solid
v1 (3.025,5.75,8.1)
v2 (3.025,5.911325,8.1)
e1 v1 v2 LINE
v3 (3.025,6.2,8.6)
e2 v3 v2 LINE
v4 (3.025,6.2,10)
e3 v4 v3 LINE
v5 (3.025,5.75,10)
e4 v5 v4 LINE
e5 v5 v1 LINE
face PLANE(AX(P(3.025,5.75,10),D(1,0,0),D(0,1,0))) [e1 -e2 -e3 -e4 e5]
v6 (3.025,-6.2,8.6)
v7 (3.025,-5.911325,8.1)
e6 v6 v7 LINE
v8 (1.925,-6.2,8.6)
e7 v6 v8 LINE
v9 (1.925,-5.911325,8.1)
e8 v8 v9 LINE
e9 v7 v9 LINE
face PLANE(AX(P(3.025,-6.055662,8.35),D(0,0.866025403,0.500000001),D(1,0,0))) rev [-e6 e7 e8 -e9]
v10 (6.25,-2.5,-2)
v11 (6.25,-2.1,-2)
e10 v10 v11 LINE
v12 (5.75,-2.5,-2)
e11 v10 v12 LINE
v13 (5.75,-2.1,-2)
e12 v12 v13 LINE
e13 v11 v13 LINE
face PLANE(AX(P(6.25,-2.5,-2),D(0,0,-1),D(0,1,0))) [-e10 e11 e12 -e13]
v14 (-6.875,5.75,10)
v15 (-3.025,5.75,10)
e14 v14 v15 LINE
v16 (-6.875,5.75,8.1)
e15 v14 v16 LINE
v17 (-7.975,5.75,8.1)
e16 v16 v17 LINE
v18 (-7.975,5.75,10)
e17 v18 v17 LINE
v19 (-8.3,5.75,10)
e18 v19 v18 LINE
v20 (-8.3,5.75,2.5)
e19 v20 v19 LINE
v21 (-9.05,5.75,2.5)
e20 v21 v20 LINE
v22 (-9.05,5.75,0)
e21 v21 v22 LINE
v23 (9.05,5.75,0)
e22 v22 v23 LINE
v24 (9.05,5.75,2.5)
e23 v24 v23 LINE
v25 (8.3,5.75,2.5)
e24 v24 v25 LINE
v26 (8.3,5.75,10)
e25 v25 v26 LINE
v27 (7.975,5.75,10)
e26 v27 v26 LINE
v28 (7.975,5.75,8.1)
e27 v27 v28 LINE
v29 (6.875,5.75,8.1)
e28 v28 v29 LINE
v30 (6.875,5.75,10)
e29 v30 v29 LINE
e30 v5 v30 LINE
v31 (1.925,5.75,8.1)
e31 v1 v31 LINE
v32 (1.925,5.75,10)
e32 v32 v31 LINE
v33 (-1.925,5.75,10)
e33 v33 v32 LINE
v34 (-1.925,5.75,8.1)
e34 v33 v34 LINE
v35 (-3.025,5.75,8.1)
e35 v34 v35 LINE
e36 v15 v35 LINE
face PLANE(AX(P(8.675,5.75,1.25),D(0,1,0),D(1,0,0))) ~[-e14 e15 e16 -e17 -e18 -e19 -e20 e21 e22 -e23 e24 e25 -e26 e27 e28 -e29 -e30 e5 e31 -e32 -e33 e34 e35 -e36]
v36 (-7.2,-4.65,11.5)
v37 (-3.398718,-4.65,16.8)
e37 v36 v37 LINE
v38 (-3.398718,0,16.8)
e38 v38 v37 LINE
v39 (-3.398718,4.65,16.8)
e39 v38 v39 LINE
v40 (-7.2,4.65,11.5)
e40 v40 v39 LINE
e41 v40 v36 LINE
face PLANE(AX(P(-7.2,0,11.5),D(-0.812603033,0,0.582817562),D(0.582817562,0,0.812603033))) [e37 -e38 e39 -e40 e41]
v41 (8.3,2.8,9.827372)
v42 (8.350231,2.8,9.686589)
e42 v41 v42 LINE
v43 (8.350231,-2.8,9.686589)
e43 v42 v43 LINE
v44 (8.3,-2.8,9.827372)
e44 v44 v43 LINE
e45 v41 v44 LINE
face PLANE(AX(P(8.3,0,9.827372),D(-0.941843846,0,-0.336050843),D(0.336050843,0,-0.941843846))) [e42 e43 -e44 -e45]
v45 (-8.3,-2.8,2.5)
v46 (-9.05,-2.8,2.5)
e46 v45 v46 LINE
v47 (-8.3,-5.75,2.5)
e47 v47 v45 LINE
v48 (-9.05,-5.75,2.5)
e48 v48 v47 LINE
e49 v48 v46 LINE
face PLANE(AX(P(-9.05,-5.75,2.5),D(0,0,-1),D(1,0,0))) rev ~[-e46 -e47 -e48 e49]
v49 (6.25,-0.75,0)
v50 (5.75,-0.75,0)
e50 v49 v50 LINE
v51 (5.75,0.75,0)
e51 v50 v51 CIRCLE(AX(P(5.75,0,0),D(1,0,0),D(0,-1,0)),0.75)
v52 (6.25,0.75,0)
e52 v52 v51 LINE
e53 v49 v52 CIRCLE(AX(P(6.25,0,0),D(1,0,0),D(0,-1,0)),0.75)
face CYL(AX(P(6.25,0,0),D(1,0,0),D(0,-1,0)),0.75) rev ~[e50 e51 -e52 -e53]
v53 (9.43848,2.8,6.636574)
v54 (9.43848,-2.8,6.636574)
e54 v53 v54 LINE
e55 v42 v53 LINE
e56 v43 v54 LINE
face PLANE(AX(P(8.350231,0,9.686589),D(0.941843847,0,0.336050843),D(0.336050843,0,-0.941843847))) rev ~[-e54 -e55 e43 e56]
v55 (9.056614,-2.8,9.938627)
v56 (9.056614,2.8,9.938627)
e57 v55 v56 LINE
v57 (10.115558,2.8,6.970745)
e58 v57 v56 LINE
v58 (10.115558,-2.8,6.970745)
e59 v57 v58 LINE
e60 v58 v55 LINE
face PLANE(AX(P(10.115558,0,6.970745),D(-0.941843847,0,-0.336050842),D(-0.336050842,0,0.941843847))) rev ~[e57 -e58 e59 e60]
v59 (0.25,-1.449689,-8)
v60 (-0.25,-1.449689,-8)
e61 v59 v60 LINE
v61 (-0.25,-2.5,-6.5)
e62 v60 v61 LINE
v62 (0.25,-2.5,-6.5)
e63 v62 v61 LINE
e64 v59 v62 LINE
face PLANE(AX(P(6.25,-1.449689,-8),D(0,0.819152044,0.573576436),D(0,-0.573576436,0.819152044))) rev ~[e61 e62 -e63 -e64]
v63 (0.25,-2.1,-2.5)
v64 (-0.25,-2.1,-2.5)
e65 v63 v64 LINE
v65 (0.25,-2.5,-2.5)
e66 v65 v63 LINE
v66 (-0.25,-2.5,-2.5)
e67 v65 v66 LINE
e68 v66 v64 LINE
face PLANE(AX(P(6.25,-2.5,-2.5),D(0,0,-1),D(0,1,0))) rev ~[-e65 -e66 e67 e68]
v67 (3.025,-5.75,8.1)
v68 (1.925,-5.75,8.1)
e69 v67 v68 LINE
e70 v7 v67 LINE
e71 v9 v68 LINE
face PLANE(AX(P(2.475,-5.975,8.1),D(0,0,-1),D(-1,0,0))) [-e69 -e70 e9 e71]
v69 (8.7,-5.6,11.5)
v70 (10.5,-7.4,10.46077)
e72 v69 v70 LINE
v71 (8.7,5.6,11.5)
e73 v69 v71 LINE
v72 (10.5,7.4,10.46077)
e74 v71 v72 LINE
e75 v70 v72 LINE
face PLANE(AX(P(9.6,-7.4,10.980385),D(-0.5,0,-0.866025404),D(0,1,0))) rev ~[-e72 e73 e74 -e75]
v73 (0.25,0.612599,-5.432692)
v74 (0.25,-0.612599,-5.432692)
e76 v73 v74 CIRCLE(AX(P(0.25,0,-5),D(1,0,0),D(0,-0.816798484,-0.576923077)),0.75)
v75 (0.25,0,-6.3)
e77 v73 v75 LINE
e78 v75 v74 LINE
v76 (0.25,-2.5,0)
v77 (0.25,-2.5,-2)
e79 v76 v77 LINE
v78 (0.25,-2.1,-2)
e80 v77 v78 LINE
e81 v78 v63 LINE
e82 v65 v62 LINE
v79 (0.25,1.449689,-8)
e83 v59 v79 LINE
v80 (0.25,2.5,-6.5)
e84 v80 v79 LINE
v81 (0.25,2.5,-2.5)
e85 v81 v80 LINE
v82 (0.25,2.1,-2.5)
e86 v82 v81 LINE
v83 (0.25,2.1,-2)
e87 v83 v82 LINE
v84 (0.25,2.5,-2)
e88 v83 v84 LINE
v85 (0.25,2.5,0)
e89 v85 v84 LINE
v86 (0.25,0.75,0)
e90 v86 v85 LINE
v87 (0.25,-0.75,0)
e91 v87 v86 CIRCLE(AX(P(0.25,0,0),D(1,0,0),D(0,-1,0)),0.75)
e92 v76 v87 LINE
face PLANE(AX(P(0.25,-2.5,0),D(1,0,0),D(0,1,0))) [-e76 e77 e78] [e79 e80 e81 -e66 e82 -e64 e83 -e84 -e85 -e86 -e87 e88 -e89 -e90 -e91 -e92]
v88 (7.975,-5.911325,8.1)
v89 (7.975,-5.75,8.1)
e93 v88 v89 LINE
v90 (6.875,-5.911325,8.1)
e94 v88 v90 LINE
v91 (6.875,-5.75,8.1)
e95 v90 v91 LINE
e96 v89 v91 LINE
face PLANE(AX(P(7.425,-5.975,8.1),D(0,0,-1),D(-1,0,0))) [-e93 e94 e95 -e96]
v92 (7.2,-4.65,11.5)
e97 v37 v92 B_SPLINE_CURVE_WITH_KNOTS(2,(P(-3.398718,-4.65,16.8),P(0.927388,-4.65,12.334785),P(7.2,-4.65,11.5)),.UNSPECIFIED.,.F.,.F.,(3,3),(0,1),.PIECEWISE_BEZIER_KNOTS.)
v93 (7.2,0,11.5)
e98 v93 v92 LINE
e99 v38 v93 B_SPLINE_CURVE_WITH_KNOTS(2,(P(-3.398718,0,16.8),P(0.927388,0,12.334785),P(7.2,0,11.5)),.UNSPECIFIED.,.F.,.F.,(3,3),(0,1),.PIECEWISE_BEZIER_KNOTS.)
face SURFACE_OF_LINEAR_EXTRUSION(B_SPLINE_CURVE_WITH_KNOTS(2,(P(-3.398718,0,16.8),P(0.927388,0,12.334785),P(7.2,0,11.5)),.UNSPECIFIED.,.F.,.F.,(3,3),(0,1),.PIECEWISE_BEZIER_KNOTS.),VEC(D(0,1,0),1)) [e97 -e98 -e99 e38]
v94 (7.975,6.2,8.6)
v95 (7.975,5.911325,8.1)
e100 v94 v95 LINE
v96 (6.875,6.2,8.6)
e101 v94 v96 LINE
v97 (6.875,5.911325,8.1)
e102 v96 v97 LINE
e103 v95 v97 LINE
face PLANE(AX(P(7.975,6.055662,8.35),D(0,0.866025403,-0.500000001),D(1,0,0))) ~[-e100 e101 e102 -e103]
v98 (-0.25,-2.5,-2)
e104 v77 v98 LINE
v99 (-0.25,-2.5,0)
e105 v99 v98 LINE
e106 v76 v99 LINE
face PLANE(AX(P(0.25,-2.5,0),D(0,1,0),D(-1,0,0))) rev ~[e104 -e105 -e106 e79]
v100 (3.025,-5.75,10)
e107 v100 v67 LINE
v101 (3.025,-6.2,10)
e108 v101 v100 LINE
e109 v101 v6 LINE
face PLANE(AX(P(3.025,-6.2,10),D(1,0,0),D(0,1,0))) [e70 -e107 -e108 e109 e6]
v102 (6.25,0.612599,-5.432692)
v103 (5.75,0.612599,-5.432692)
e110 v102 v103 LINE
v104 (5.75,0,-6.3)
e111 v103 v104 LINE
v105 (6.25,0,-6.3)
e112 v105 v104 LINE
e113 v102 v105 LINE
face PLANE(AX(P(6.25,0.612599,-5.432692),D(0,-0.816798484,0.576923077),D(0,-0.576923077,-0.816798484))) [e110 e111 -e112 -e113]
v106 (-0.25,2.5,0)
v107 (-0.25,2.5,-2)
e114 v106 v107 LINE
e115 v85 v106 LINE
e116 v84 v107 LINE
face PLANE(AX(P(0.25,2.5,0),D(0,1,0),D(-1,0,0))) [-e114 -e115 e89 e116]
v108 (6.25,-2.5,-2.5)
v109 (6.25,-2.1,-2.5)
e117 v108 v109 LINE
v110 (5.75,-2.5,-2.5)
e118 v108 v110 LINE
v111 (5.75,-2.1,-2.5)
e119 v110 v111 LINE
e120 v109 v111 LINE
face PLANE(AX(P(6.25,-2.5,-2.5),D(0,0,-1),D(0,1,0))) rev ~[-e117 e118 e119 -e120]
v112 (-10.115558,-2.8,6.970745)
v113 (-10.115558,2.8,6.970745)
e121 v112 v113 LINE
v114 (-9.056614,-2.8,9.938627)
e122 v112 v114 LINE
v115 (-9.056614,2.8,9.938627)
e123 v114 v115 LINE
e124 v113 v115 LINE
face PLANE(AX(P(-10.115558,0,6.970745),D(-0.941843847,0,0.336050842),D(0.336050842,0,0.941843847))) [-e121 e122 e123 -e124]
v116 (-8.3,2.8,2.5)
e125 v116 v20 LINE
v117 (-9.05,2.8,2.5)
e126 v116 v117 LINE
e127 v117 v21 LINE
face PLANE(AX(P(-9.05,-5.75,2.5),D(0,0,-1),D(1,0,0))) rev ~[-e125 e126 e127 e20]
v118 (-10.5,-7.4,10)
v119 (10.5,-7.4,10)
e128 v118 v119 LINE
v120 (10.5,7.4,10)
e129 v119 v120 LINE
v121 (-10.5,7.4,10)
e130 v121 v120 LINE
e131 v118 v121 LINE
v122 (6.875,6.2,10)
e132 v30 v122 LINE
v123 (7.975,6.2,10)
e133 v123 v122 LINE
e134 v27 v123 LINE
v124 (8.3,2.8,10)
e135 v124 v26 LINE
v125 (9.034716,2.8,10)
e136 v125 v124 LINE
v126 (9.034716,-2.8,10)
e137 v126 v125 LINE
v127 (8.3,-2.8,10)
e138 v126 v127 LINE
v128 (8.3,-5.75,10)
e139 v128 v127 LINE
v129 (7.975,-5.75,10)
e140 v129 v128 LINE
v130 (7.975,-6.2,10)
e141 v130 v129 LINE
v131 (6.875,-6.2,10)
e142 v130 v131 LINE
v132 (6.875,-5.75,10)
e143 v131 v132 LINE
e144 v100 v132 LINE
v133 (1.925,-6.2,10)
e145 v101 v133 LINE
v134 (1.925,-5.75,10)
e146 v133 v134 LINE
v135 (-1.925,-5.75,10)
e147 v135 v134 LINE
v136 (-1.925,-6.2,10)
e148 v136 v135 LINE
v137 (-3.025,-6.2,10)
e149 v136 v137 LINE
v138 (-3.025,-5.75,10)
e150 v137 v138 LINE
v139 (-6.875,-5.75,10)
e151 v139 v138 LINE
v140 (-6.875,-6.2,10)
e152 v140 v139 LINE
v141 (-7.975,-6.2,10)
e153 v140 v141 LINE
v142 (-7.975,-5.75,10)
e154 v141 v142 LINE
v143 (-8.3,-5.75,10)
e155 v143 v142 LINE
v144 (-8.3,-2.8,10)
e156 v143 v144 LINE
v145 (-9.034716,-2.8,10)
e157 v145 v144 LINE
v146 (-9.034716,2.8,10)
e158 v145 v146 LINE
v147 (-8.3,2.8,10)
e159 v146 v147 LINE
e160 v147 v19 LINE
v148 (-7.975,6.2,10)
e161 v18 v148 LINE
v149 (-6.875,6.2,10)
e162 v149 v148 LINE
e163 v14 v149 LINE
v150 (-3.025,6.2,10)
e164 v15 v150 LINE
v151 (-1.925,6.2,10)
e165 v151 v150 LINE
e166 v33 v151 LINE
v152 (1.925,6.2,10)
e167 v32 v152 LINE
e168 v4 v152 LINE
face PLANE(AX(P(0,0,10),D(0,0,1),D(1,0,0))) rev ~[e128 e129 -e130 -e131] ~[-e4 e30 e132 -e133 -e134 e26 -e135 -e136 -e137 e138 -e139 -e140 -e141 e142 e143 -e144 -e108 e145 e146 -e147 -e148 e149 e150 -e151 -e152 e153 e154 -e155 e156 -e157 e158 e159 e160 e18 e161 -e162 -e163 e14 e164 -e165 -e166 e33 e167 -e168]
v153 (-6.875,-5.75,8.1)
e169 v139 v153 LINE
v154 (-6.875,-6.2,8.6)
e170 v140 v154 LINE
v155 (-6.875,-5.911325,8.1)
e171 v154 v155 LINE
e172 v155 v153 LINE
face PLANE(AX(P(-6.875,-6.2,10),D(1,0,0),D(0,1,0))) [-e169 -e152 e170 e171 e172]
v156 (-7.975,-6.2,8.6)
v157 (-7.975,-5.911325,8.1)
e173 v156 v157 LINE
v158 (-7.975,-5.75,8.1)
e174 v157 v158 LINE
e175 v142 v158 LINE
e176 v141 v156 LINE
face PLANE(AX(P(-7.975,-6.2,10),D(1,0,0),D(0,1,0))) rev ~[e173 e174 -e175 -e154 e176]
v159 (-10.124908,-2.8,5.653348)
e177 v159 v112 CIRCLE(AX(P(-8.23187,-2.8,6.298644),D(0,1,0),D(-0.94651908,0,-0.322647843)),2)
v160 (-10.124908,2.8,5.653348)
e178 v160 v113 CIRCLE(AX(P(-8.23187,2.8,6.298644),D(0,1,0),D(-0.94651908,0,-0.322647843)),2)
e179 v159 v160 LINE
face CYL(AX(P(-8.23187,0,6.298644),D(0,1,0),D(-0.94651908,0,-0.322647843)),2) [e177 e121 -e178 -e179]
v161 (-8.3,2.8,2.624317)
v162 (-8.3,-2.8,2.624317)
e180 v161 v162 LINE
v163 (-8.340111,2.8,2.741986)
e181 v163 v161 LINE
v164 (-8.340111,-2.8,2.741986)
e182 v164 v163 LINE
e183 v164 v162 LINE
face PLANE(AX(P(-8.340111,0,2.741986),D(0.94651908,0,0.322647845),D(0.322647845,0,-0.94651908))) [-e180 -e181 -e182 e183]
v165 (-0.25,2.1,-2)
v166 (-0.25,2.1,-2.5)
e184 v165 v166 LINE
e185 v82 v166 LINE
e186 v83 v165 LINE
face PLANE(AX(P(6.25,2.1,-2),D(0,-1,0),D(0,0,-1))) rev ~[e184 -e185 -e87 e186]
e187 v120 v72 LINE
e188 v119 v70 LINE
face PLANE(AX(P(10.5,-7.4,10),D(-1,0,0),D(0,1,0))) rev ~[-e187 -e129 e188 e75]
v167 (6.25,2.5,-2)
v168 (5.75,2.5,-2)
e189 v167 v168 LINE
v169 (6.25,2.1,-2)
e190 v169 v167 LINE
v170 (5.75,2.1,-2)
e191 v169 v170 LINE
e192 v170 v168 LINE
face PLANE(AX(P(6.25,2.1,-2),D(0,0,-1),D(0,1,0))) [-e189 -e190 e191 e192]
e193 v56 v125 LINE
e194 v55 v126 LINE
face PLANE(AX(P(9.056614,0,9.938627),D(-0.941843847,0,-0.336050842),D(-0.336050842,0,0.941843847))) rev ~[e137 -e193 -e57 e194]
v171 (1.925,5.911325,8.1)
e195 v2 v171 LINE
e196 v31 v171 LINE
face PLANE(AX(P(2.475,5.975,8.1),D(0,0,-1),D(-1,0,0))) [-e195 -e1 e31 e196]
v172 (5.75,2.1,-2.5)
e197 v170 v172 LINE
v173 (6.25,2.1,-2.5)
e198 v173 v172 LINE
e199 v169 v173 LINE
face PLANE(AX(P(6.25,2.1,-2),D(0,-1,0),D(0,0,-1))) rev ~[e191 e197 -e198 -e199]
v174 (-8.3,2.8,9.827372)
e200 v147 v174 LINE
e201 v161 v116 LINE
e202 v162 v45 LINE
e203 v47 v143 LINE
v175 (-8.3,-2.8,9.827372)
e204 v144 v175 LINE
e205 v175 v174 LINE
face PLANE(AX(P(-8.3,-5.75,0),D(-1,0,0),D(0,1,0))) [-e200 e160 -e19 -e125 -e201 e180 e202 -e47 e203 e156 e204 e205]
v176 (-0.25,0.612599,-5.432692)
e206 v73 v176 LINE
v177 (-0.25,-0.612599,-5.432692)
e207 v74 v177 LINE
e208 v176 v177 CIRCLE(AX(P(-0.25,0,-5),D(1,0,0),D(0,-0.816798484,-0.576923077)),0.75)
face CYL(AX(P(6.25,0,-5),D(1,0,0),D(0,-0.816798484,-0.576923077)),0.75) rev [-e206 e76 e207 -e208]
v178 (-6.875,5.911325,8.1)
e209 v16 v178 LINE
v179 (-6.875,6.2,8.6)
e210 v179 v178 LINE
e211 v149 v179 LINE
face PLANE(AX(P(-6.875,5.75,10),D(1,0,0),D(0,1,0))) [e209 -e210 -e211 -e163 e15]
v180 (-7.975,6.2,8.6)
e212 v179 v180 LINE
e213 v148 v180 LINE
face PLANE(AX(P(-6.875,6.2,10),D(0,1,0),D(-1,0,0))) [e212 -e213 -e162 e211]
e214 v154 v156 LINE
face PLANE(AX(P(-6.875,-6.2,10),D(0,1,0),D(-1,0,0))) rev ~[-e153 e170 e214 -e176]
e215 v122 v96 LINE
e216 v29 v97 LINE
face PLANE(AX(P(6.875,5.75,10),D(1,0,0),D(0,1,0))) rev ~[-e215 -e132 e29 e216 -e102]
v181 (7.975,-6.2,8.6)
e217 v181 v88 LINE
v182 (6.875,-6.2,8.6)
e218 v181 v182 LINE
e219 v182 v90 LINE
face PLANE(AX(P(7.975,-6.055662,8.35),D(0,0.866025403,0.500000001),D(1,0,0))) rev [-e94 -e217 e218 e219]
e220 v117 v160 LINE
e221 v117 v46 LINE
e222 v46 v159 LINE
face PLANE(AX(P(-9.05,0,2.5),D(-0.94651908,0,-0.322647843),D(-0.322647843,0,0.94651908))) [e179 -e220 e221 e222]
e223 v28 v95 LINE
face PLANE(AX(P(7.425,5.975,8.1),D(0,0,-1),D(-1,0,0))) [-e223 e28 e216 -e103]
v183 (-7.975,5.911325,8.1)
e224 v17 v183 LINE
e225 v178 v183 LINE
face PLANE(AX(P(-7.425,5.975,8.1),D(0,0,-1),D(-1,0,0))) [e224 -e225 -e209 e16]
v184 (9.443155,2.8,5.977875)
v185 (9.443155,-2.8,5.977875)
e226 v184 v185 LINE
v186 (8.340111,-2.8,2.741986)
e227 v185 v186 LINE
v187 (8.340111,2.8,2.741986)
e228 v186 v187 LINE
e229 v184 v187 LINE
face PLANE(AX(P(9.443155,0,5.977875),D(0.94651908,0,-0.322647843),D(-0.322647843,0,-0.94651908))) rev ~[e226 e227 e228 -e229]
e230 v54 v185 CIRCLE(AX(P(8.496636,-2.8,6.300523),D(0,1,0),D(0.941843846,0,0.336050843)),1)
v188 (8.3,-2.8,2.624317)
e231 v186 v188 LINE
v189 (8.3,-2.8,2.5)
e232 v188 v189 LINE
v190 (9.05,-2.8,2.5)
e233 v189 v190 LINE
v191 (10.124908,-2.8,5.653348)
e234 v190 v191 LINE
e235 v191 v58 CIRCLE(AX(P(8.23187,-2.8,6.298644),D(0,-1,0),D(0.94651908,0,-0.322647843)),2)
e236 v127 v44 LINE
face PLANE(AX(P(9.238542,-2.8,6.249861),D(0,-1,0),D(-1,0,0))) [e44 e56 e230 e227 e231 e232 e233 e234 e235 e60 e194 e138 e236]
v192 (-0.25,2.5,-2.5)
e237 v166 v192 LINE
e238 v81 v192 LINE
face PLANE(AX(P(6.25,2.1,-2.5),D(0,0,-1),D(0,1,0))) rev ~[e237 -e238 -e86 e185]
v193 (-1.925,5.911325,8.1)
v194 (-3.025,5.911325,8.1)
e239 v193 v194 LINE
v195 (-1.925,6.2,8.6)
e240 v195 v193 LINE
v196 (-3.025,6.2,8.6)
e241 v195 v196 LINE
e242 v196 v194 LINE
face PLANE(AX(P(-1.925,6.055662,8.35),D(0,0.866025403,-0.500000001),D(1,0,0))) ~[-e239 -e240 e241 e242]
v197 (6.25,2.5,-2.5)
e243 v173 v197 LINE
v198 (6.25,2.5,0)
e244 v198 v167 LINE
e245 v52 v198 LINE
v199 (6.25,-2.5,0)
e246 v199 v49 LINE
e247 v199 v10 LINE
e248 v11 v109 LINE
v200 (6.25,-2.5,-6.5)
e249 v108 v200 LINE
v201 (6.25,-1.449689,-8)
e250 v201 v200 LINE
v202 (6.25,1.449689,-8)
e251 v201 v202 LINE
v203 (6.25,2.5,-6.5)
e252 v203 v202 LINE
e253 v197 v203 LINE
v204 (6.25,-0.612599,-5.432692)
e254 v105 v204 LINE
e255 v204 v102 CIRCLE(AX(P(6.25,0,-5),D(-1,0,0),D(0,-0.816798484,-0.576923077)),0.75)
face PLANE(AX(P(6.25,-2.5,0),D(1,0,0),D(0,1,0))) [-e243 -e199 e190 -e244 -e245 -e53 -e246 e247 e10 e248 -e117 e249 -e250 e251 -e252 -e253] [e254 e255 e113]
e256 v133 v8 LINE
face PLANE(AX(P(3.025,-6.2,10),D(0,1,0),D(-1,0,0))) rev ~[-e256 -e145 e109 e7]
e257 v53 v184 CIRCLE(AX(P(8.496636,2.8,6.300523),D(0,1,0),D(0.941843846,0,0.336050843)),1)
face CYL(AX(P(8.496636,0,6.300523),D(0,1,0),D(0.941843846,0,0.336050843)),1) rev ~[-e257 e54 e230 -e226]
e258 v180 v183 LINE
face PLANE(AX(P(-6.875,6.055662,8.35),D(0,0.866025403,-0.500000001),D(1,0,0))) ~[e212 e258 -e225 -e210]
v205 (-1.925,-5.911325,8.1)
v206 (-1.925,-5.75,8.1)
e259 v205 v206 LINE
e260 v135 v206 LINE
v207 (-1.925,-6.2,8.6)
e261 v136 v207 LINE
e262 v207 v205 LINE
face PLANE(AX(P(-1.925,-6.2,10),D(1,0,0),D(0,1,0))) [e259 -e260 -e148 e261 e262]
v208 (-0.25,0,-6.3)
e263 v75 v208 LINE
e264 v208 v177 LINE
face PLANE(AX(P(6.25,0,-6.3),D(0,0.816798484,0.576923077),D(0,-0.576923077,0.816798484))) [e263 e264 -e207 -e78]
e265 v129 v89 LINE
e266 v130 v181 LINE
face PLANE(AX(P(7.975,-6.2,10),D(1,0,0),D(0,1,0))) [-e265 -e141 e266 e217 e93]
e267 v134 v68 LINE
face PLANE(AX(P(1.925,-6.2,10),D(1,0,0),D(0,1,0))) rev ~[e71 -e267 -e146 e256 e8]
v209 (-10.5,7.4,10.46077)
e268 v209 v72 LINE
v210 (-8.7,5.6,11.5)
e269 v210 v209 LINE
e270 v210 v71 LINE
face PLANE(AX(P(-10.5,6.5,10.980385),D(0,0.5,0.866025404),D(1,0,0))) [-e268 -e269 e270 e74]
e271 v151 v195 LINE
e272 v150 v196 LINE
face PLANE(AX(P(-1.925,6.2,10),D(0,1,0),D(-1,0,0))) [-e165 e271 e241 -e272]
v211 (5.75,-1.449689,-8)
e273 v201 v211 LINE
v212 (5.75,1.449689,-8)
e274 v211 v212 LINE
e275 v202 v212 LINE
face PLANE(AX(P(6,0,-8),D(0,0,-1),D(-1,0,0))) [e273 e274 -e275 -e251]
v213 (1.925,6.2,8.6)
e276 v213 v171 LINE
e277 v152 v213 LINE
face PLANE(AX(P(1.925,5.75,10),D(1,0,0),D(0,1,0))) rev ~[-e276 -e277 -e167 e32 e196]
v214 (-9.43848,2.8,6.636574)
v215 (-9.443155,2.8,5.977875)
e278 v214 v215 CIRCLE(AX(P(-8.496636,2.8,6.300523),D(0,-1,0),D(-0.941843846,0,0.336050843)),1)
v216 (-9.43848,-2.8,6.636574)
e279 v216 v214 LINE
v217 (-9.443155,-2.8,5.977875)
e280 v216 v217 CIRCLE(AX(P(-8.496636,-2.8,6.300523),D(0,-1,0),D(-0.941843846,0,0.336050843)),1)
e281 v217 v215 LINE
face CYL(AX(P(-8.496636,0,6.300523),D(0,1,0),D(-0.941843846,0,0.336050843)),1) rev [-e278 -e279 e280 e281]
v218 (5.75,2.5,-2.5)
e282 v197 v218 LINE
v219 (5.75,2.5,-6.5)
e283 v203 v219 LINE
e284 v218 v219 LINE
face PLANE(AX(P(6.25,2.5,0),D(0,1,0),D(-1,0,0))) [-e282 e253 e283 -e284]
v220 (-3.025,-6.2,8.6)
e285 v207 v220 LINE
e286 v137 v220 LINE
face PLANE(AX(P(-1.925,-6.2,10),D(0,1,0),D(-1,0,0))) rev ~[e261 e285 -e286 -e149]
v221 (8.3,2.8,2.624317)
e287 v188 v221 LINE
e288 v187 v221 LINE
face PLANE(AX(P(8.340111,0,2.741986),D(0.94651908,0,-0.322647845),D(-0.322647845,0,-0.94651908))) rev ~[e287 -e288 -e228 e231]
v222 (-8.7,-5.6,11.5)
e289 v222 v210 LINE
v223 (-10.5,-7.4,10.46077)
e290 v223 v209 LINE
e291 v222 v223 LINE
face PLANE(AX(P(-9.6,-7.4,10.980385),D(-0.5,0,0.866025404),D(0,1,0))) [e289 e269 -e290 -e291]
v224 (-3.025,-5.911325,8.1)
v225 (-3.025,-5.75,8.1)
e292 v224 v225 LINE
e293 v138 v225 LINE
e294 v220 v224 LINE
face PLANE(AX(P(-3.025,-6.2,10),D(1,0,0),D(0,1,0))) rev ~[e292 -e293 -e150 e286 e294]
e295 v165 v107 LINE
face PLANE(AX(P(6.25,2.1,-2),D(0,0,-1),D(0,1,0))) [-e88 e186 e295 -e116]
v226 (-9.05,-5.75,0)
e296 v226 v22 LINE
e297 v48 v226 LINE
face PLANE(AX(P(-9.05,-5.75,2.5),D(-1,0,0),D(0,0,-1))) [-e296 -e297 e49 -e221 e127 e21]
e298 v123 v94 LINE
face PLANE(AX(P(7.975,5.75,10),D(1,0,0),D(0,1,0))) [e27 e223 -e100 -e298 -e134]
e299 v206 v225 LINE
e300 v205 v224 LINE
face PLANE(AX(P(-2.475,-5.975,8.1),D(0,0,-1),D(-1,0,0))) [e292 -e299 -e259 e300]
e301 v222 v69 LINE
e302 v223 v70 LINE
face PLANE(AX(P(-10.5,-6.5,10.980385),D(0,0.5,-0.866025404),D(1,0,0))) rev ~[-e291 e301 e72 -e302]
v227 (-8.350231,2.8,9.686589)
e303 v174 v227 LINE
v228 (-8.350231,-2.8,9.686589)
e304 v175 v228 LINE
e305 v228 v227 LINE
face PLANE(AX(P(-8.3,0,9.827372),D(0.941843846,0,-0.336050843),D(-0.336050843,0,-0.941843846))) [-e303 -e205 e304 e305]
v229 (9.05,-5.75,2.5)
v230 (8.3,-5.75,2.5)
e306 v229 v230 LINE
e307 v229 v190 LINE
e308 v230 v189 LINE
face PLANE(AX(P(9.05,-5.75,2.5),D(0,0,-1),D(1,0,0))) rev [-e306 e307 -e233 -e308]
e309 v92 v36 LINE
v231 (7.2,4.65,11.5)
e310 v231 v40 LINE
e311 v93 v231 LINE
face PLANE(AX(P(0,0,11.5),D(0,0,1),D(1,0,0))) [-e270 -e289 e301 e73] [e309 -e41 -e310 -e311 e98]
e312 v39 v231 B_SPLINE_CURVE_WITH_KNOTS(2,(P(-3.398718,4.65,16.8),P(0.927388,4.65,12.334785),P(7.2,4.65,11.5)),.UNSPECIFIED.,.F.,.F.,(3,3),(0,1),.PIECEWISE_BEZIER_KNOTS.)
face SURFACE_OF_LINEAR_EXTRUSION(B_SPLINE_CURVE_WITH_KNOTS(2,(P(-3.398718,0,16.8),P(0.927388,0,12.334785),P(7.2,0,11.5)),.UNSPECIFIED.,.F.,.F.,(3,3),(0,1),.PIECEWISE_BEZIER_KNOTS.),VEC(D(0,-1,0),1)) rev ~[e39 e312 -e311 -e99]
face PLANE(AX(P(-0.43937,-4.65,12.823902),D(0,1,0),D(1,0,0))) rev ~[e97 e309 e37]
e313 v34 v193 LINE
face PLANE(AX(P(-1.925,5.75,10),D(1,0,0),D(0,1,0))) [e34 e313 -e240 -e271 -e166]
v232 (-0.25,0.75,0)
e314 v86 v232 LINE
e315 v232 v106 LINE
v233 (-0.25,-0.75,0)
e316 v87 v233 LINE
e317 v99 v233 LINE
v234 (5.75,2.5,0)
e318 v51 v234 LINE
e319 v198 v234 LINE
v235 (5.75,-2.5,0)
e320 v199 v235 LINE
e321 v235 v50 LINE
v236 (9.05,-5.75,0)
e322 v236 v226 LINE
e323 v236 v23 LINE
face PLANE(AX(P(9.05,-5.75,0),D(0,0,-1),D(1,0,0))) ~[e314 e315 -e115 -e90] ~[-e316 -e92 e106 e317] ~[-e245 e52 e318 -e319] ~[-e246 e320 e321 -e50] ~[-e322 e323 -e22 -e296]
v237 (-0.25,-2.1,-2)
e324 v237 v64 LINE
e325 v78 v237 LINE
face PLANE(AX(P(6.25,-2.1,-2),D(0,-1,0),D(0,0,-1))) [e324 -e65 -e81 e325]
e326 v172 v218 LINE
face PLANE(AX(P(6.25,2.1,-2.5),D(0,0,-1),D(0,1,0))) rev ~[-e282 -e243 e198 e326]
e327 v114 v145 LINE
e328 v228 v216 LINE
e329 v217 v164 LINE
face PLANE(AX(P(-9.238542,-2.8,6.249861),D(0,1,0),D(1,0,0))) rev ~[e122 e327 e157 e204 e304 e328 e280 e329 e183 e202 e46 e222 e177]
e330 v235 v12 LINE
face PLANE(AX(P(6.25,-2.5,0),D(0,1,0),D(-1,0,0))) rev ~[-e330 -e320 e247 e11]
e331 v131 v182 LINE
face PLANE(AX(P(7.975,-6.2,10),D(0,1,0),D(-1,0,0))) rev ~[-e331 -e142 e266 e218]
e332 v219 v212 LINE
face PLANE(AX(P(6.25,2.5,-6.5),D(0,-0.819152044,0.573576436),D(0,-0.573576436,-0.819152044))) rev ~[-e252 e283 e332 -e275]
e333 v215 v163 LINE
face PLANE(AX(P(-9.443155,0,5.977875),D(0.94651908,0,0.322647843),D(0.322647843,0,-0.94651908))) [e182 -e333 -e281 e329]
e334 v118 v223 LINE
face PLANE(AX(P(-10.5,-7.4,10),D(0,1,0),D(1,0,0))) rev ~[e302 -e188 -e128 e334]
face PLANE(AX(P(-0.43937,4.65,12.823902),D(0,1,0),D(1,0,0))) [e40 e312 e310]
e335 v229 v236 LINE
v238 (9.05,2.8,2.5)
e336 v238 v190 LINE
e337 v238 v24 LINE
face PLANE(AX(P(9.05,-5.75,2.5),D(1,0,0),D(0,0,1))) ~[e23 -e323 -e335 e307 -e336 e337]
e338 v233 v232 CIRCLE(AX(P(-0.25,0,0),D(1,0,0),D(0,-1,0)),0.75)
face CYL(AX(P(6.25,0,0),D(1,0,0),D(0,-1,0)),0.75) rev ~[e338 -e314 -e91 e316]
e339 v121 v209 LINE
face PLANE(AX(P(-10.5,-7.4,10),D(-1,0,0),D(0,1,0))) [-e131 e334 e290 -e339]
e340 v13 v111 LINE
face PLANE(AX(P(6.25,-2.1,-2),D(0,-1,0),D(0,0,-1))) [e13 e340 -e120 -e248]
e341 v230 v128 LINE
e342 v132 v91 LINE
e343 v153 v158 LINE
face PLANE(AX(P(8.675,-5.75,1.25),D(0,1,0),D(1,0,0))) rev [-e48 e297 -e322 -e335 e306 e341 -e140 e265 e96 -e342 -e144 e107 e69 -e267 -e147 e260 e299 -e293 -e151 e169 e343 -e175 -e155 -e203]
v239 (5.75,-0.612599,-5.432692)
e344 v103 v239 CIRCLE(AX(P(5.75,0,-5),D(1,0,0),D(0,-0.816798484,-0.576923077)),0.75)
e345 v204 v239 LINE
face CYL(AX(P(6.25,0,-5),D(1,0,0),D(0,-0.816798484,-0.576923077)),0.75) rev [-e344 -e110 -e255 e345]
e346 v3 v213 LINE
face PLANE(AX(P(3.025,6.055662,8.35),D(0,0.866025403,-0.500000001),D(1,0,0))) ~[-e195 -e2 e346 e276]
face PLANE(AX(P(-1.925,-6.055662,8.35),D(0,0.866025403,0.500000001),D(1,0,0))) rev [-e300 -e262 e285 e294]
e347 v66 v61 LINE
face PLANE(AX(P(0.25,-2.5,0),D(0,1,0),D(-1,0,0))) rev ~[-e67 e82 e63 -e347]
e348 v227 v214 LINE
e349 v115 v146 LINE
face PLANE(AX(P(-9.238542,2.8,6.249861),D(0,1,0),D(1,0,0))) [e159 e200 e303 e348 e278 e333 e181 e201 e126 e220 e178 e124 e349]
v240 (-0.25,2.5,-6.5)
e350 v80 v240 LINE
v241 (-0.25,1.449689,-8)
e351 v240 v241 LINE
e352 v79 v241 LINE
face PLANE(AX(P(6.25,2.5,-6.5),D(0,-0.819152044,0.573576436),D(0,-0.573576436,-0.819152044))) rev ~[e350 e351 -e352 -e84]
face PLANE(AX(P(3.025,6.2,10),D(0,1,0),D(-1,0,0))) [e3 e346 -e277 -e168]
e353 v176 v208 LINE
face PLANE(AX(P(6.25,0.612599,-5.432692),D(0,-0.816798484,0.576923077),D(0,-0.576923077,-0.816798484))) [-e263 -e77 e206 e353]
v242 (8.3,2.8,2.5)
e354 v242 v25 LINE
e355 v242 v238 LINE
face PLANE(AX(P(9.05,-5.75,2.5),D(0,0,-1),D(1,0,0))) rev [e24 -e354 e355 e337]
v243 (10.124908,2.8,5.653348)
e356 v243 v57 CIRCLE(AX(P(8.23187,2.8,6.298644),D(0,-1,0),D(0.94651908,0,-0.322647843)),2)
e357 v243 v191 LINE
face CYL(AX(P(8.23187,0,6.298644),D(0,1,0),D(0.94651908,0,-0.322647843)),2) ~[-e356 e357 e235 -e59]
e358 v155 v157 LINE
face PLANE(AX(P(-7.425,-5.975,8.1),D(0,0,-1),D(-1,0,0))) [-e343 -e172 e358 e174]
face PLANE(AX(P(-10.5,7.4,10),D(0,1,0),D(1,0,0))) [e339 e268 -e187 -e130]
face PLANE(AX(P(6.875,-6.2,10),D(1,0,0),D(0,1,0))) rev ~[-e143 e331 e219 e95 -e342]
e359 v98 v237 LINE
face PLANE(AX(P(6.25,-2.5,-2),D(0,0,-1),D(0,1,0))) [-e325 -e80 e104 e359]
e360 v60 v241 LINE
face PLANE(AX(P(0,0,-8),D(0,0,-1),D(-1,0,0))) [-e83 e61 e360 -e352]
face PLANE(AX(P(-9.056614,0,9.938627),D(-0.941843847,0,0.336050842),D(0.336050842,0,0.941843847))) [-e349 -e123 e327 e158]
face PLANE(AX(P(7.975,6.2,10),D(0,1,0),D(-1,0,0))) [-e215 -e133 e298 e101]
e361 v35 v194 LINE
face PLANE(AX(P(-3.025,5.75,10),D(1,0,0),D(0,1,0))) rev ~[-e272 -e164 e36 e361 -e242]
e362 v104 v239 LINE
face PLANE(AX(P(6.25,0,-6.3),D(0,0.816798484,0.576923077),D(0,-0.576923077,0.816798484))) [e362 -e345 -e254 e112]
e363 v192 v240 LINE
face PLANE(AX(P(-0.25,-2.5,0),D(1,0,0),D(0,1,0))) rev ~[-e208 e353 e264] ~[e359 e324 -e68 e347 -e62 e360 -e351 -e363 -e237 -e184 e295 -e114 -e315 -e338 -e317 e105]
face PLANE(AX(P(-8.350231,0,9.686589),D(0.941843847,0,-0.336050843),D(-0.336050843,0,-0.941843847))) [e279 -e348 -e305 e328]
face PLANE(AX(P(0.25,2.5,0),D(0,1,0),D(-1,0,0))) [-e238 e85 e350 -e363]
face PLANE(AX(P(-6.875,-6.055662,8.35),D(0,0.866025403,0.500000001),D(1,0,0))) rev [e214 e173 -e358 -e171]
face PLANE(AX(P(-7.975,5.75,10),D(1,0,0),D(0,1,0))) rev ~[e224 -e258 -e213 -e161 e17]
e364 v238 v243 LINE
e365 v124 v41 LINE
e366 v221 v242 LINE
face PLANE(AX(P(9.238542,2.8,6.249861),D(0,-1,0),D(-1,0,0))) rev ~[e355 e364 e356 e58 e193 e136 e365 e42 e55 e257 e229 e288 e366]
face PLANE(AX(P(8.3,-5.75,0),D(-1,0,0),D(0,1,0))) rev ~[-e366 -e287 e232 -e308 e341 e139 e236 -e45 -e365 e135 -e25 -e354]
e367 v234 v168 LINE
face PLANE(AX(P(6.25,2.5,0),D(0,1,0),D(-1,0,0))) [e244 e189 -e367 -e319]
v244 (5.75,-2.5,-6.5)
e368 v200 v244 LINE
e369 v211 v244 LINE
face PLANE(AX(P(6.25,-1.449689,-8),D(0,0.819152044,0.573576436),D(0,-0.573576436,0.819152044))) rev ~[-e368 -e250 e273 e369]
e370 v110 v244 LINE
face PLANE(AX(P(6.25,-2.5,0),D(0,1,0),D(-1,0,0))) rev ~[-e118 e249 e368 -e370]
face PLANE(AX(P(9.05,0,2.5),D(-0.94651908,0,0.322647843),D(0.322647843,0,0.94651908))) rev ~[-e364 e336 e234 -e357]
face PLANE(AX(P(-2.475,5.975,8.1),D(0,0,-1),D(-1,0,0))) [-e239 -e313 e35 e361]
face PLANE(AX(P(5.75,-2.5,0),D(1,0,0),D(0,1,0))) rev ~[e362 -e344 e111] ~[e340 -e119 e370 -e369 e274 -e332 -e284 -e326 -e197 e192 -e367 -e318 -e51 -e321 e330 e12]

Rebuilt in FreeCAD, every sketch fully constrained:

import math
import FreeCAD as App
import Part
import Sketcher
Q = App.Units.Quantity


def edges_at(feature, points):
    """Names of the edges that pass closest to the given points."""
    edges = feature.Shape.Edges
    near = lambda p: min(range(len(edges)), key=lambda i: edges[i].distToShape(Part.Vertex(*p))[0])
    return sorted({f"Edge{near(p) + 1}" for p in points})


def add_polygon(sketch, points):
    """Adds a closed chain of lines whose ends are joined by coincident constraints."""
    first, n = sketch.GeometryCount, len(points)
    for a, b in zip(points, points[1:] + points[:1]):
        sketch.addGeometry(Part.LineSegment(App.Vector(*a, 0), App.Vector(*b, 0)), False)
    for i in range(n):
        sketch.addConstraint(Sketcher.Constraint("Coincident", first + i, 2, first + (i + 1) % n, 1))

doc = App.newDocument("Part")
body = doc.addObject("PartDesign::Body", "Body")

# Sketch on XY plane
sketch1 = body.newObject("Sketcher::SketchObject", "Sketch")
sketch1.AttachmentSupport = (doc.getObject("XY_Plane"), [""])
sketch1.MapMode = "FlatFace"
add_polygon(sketch1, [(-8, 6), (-8, -6), (8, -6), (8, 6)])  # lines 0-3
sketch1.addConstraint([
    Sketcher.Constraint("Vertical", 0),
    Sketcher.Constraint("Horizontal", 1),
    Sketcher.Constraint("Vertical", 2),
    Sketcher.Constraint("Horizontal", 3),
    Sketcher.Constraint("Symmetric", 0, 2, 2, 2, -1, 1),
    Sketcher.Constraint("DistanceX", 1, 1, 1, 2, Q("16.6 mm")),
    Sketcher.Constraint("DistanceY", 0, 2, 0, 1, Q("11.5 mm")),
])
pad1 = body.newObject("PartDesign::Pad", "Pad")
pad1.Profile = sketch1
pad1.Length = 10

# Sketch on XY plane
sketch2 = body.newObject("Sketcher::SketchObject", "Sketch001")
sketch2.AttachmentSupport = (doc.getObject("XY_Plane"), [""])
sketch2.MapMode = "FlatFace"
sketch2.AttachmentOffset = App.Placement(App.Vector(0, 0, 10), App.Rotation())
add_polygon(sketch2, [(-10, 7), (-10, -7), (10, -7), (10, 7)])  # lines 0-3
sketch2.addConstraint([
    Sketcher.Constraint("Vertical", 0),
    Sketcher.Constraint("Horizontal", 1),
    Sketcher.Constraint("Vertical", 2),
    Sketcher.Constraint("Horizontal", 3),
    Sketcher.Constraint("Symmetric", 0, 2, 2, 2, -1, 1),
    Sketcher.Constraint("DistanceX", 1, 1, 1, 2, Q("21 mm")),
    Sketcher.Constraint("DistanceY", 0, 2, 0, 1, Q("14.8 mm")),
])
pad2 = body.newObject("PartDesign::Pad", "Pad001")
pad2.Profile = sketch2
pad2.Length = 1.5

# Sketch on XY plane
sketch3 = body.newObject("Sketcher::SketchObject", "Sketch002")
sketch3.AttachmentSupport = (doc.getObject("XY_Plane"), [""])
sketch3.MapMode = "FlatFace"
add_polygon(sketch3, [(6.2, 2.5), (6.2, -2.5), (5.8, -2.5), (5.8, 2.5)])  # lines 0-3
add_polygon(sketch3, [(0.2, 2.5), (0.2, -2.5), (-0.2, -2.5), (-0.2, 2.5)])  # lines 4-7
sketch3.addConstraint([
    Sketcher.Constraint("Vertical", 0),
    Sketcher.Constraint("Horizontal", 1),
    Sketcher.Constraint("Vertical", 2),
    Sketcher.Constraint("Horizontal", 3),
    Sketcher.Constraint("Vertical", 4),
    Sketcher.Constraint("Horizontal", 5),
    Sketcher.Constraint("Vertical", 6),
    Sketcher.Constraint("Horizontal", 7),
    Sketcher.Constraint("Symmetric", 4, 2, 6, 2, -1, 1),
    Sketcher.Constraint("Horizontal", 1, 2, 4, 2),
    Sketcher.Constraint("Horizontal", 3, 2, 6, 2),
    Sketcher.Constraint("Equal", 3, 5),
    Sketcher.Constraint("DistanceY", 0, 2, 0, 1, Q("5 mm")),
    Sketcher.Constraint("DistanceX", 1, 2, 1, 1, Q("0.5 mm")),
    Sketcher.Constraint("DistanceX", 4, 2, 0, 2, Q("6 mm")),
])
pad3 = body.newObject("PartDesign::Pad", "Pad002")
pad3.Profile = sketch3
pad3.Length = 8
pad3.Reversed = True

# Sketch on YZ plane
sketch4 = body.newObject("Sketcher::SketchObject", "Sketch003")
sketch4.AttachmentSupport = (doc.getObject("YZ_Plane"), [""])
sketch4.MapMode = "FlatFace"
sketch4.AttachmentOffset = App.Placement(App.Vector(0, 0, 6.25), App.Rotation())
add_polygon(sketch4, [(2.5, -2), (2.1, -2), (2.1, -2.5), (2.5, -2.5)])  # lines 0-3
sketch4.addGeometry(Part.LineSegment(App.Vector(0.75, 0, 0), App.Vector(-0.75, 0, 0)), False)  # 4
sketch4.addGeometry(Part.ArcOfCircle(Part.Circle(App.Vector(0, 0, 0), App.Vector(0, 0, 1), 0.75), math.radians(180), math.radians(360)), False)  # 5
add_polygon(sketch4, [(2.5, -6.5), (1.45, -8), (2.5, -8)])  # lines 6-8
sketch4.addGeometry(Part.LineSegment(App.Vector(0, -6.3, 0), App.Vector(0.61, -5.43, 0)), False)  # 9
sketch4.addGeometry(Part.ArcOfCircle(Part.Circle(App.Vector(0, -5, 0), App.Vector(0, 0, 1), 0.75), math.radians(-35), math.radians(215)), False)  # 10
sketch4.addGeometry(Part.LineSegment(App.Vector(-0.61, -5.43, 0), App.Vector(0, -6.3, 0)), False)  # 11
add_polygon(sketch4, [(-2.5, -8), (-1.45, -8), (-2.5, -6.5)])  # lines 12-14
add_polygon(sketch4, [(-2.1, -2), (-2.5, -2), (-2.5, -2.5), (-2.1, -2.5)])  # lines 15-18
sketch4.addConstraint([
    Sketcher.Constraint("Coincident", 4, 1, 5, 2),
    Sketcher.Constraint("Coincident", 5, 1, 4, 2),
    Sketcher.Constraint("Tangent", 9, 2, 10, 1),
    Sketcher.Constraint("Tangent", 10, 2, 11, 1),
    Sketcher.Constraint("Coincident", 11, 2, 9, 1),
    Sketcher.Constraint("Horizontal", 0),
    Sketcher.Constraint("Vertical", 1),
    Sketcher.Constraint("Horizontal", 2),
    Sketcher.Constraint("Vertical", 3),
    Sketcher.Constraint("Horizontal", 4),
    Sketcher.Constraint("Horizontal", 7),
    Sketcher.Constraint("Vertical", 8),
    Sketcher.Constraint("Horizontal", 12),
    Sketcher.Constraint("Vertical", 14),
    Sketcher.Constraint("Horizontal", 15),
    Sketcher.Constraint("Vertical", 16),
    Sketcher.Constraint("Horizontal", 17),
    Sketcher.Constraint("Vertical", 18),
    Sketcher.Constraint("Coincident", 5, 3, -1, 1),
    Sketcher.Constraint("Equal", 5, 10),
    Sketcher.Constraint("Symmetric", 9, 2, 10, 2, -2),
    Sketcher.Constraint("Symmetric", 6, 2, 12, 2, -2),
    Sketcher.Constraint("Symmetric", 8, 2, 13, 2, -2),
    Sketcher.Constraint("Symmetric", 3, 2, 15, 2, -2),
    Sketcher.Constraint("Symmetric", 1, 2, 17, 2, -2),
    Sketcher.Constraint("PointOnObject", 4, 1, -1),
    Sketcher.Constraint("Vertical", 3, 2, 7, 2),
    Sketcher.Constraint("Equal", 4, 8),
    Sketcher.Constraint("Angle", 6, Q("-125 deg")),
    Sketcher.Constraint("Radius", 5, Q("0.75 mm")),
    Sketcher.Constraint("DistanceX", 0, 2, 0, 1, Q("0.4 mm")),
    Sketcher.Constraint("DistanceY", 1, 2, 1, 1, Q("0.5 mm")),
    Sketcher.Constraint("DistanceY", 10, 3, -1, 1, Q("5 mm")),
    Sketcher.Constraint("DistanceY", 0, 2, -1, 1, Q("2 mm")),
    Sketcher.Constraint("DistanceY", 6, 2, -1, 1, Q("8 mm")),
    Sketcher.Constraint("DistanceX", -1, 1, 0, 2, Q("2.1 mm")),
    Sketcher.Constraint("DistanceY", 11, 2, -1, 1, Q("6.3 mm")),
])
pocket1 = body.newObject("PartDesign::Pocket", "Pocket")
pocket1.Profile = sketch4
pocket1.Type = "ThroughAll"

# Sketch on XZ plane
sketch5 = body.newObject("Sketcher::SketchObject", "Sketch004")
sketch5.AttachmentSupport = (doc.getObject("XZ_Plane"), [""])
sketch5.MapMode = "FlatFace"
sketch5.AttachmentOffset = App.Placement(App.Vector(0, 0, 5.75), App.Rotation())
add_polygon(sketch5, [(-9.1, 0), (-9.1, 2.5), (-8.3, 2.5), (-8.3, 0)])  # lines 0-3
sketch5.addConstraint([
    Sketcher.Constraint("Vertical", 0),
    Sketcher.Constraint("Horizontal", 1),
    Sketcher.Constraint("Vertical", 2),
    Sketcher.Constraint("Horizontal", 3),
    Sketcher.Constraint("PointOnObject", 2, 2, -1),
    Sketcher.Constraint("DistanceY", 0, 1, 0, 2, Q("2.5 mm")),
    Sketcher.Constraint("DistanceX", 1, 1, 1, 2, Q("0.75 mm")),
    Sketcher.Constraint("DistanceX", 1, 2, -1, 1, Q("8.3 mm")),
])
pad4 = body.newObject("PartDesign::Pad", "Pad003")
pad4.Profile = sketch5
pad4.Length = 11.5
pad4.Reversed = True
doc.recompute()

mirrored = body.newObject("PartDesign::Mirrored", "Mirrored")
mirrored.Originals = [pad4]
mirrored.MirrorPlane = (doc.getObject("YZ_Plane"), [""])
body.Tip = mirrored

# Sketch on XZ plane
sketch6 = body.newObject("Sketcher::SketchObject", "Sketch005")
sketch6.AttachmentSupport = (doc.getObject("XZ_Plane"), [""])
sketch6.MapMode = "FlatFace"
sketch6.addGeometry([
    Part.LineSegment(App.Vector(-9.05, 2.5, 0), App.Vector(-10.12, 5.65, 0)),  # 0
    Part.ArcOfCircle(Part.Circle(App.Vector(-8.23, 6.3, 0), App.Vector(0, 0, 1), 2), math.radians(160), math.radians(199)),  # 1
    Part.LineSegment(App.Vector(-10.12, 6.97, 0), App.Vector(-9.06, 9.94, 0)),  # 2
    Part.LineSegment(App.Vector(-9.06, 9.94, 0), App.Vector(-9.03, 10, 0)),  # 3
    Part.LineSegment(App.Vector(-9.03, 10, 0), App.Vector(-8.3, 10, 0)),  # 4
    Part.LineSegment(App.Vector(-8.3, 10, 0), App.Vector(-8.3, 9.83, 0)),  # 5
    Part.LineSegment(App.Vector(-8.3, 9.83, 0), App.Vector(-8.35, 9.69, 0)),  # 6
    Part.LineSegment(App.Vector(-8.35, 9.69, 0), App.Vector(-9.44, 6.64, 0)),  # 7
    Part.ArcOfCircle(Part.Circle(App.Vector(-8.5, 6.3, 0), App.Vector(0, 0, 1), 1), math.radians(160), math.radians(199)),  # 8
    Part.LineSegment(App.Vector(-9.44, 5.98, 0), App.Vector(-8.34, 2.74, 0)),  # 9
    Part.LineSegment(App.Vector(-8.34, 2.74, 0), App.Vector(-8.3, 2.62, 0)),  # 10
    Part.LineSegment(App.Vector(-8.3, 2.62, 0), App.Vector(-8.3, 2.5, 0)),  # 11
    Part.LineSegment(App.Vector(-8.3, 2.5, 0), App.Vector(-9.05, 2.5, 0)),  # 12
    Part.LineSegment(App.Vector(8.35, 9.69, 0), App.Vector(8.3, 9.83, 0)),  # 13
    Part.LineSegment(App.Vector(8.3, 9.83, 0), App.Vector(8.3, 10, 0)),  # 14
    Part.LineSegment(App.Vector(8.3, 10, 0), App.Vector(9.03, 10, 0)),  # 15
    Part.LineSegment(App.Vector(9.03, 10, 0), App.Vector(9.06, 9.94, 0)),  # 16
    Part.LineSegment(App.Vector(9.06, 9.94, 0), App.Vector(10.12, 6.97, 0)),  # 17
    Part.ArcOfCircle(Part.Circle(App.Vector(8.23, 6.3, 0), App.Vector(0, 0, 1), 2), math.radians(-19), math.radians(20)),  # 18
    Part.LineSegment(App.Vector(10.12, 5.65, 0), App.Vector(9.05, 2.5, 0)),  # 19
    Part.LineSegment(App.Vector(9.05, 2.5, 0), App.Vector(8.3, 2.5, 0)),  # 20
    Part.LineSegment(App.Vector(8.3, 2.5, 0), App.Vector(8.3, 2.62, 0)),  # 21
    Part.LineSegment(App.Vector(8.3, 2.62, 0), App.Vector(8.34, 2.74, 0)),  # 22
    Part.LineSegment(App.Vector(8.34, 2.74, 0), App.Vector(9.44, 5.98, 0)),  # 23
    Part.ArcOfCircle(Part.Circle(App.Vector(8.5, 6.3, 0), App.Vector(0, 0, 1), 1), math.radians(-19), math.radians(20)),  # 24
    Part.LineSegment(App.Vector(9.44, 6.64, 0), App.Vector(8.35, 9.69, 0)),  # 25
], False)
sketch6.addConstraint([
    Sketcher.Constraint("Tangent", 0, 2, 1, 2),
    Sketcher.Constraint("Tangent", 1, 1, 2, 1),
    Sketcher.Constraint("Coincident", 2, 2, 3, 1),
    Sketcher.Constraint("Coincident", 3, 2, 4, 1),
    Sketcher.Constraint("Coincident", 4, 2, 5, 1),
    Sketcher.Constraint("Coincident", 5, 2, 6, 1),
    Sketcher.Constraint("Coincident", 6, 2, 7, 1),
    Sketcher.Constraint("Tangent", 7, 2, 8, 1),
    Sketcher.Constraint("Tangent", 8, 2, 9, 1),
    Sketcher.Constraint("Coincident", 9, 2, 10, 1),
    Sketcher.Constraint("Coincident", 10, 2, 11, 1),
    Sketcher.Constraint("Coincident", 11, 2, 12, 1),
    Sketcher.Constraint("Coincident", 12, 2, 0, 1),
    Sketcher.Constraint("Coincident", 13, 2, 14, 1),
    Sketcher.Constraint("Coincident", 14, 2, 15, 1),
    Sketcher.Constraint("Coincident", 15, 2, 16, 1),
    Sketcher.Constraint("Coincident", 16, 2, 17, 1),
    Sketcher.Constraint("Tangent", 17, 2, 18, 2),
    Sketcher.Constraint("Tangent", 18, 1, 19, 1),
    Sketcher.Constraint("Coincident", 19, 2, 20, 1),
    Sketcher.Constraint("Coincident", 20, 2, 21, 1),
    Sketcher.Constraint("Coincident", 21, 2, 22, 1),
    Sketcher.Constraint("Coincident", 22, 2, 23, 1),
    Sketcher.Constraint("Tangent", 23, 2, 24, 1),
    Sketcher.Constraint("Tangent", 24, 2, 25, 1),
    Sketcher.Constraint("Coincident", 25, 2, 13, 1),
    Sketcher.Constraint("Horizontal", 4),
    Sketcher.Constraint("Vertical", 5),
    Sketcher.Constraint("Vertical", 11),
    Sketcher.Constraint("Horizontal", 12),
    Sketcher.Constraint("Vertical", 14),
    Sketcher.Constraint("Horizontal", 15),
    Sketcher.Constraint("Horizontal", 20),
    Sketcher.Constraint("Vertical", 21),
    Sketcher.Constraint("Equal", 1, 18),
    Sketcher.Constraint("Equal", 8, 24),
    Sketcher.Constraint("Symmetric", 1, 3, 18, 3, -2),
    Sketcher.Constraint("Symmetric", 8, 3, 24, 3, -2),
    Sketcher.Constraint("Symmetric", 5, 2, 13, 2, -2),
    Sketcher.Constraint("Symmetric", 3, 2, 15, 2, -2),
    Sketcher.Constraint("Symmetric", 2, 2, 16, 2, -2),
    Sketcher.Constraint("Symmetric", 12, 2, 19, 2, -2),
    Sketcher.Constraint("Symmetric", 10, 2, 21, 2, -2),
    Sketcher.Constraint("Symmetric", 9, 2, 22, 2, -2),
    Sketcher.Constraint("Symmetric", 6, 2, 25, 2, -2),
    Sketcher.Constraint("Parallel", 2, 3),
    Sketcher.Constraint("Parallel", 3, 6),
    Sketcher.Constraint("Parallel", 6, 7),
    Sketcher.Constraint("Parallel", 0, 9),
    Sketcher.Constraint("Parallel", 9, 10),
    Sketcher.Constraint("Vertical", 5, 2, 10, 2),
    Sketcher.Constraint("Radius", 1, Q("2 mm")),
    Sketcher.Constraint("Radius", 8, Q("1 mm")),
    Sketcher.Constraint("DistanceY", -1, 1, 3, 2, Q("10 mm")),
    Sketcher.Constraint("DistanceX", 12, 2, 12, 1, Q("0.75 mm")),
    Sketcher.Constraint("DistanceX", 4, 2, -1, 1, Q("8.3 mm")),
    Sketcher.Constraint("DistanceY", -1, 1, 11, 2, Q("2.5 mm")),
    Sketcher.Constraint("DistanceY", 5, 2, 5, 1, Q("0.172628 mm")),
    Sketcher.Constraint("DistanceY", 1, 3, 1, 1, Q("0.672102 mm")),
    Sketcher.Constraint("DistanceY", 8, 2, 7, 2, Q("0.658699 mm")),
    Sketcher.Constraint("Distance", 0, Q("3.331521 mm")),
    Sketcher.Constraint("Distance", 2, Q("3.15114 mm")),
    Sketcher.Constraint("DistanceY", 11, 2, 11, 1, Q("0.124317 mm")),
    Sketcher.Constraint("DistanceX", 6, 2, -1, 1, Q("8.350231 mm")),
    Sketcher.Constraint("DistanceX", 9, 2, -1, 1, Q("8.340111 mm")),
])
pad5 = body.newObject("PartDesign::Pad", "Pad004")
pad5.Profile = sketch6
pad5.Type = "TwoLengths"
pad5.Length = 2.8
pad5.Length2 = 2.8
pad5.Reversed = True
doc.recompute()

chamfer = body.newObject("PartDesign::Chamfer", "Chamfer")
chamfer.Base = (pad5, edges_at(pad5, [
    (10.5, 0, 11.5),
    (0, 7.4, 11.5),
    (-10.5, 0, 11.5),
    (0, -7.4, 11.5),
]))
chamfer.ChamferType = "Two distances"
chamfer.Size = 1.8
chamfer.Size2 = 1.03923
chamfer.FlipDirection = True

# Sketch on XZ plane
sketch7 = body.newObject("Sketcher::SketchObject", "Sketch006")
sketch7.AttachmentSupport = (doc.getObject("XZ_Plane"), [""])
sketch7.MapMode = "FlatFace"
sketch7.addGeometry([
    Part.LineSegment(App.Vector(-7.2, 11.5, 0), App.Vector(-3.398718, 16.8, 0)),
    Part.BSplineCurve([App.Vector(-3.398718, 16.8, 0), App.Vector(0.927388, 12.334785, 0), App.Vector(7.2, 11.5, 0)], [3, 3], [0, 1], False, 2, [1, 1, 1], False),
    Part.LineSegment(App.Vector(7.2, 11.5, 0), App.Vector(-7.2, 11.5, 0)),
], False)
sketch7.addConstraint([
    Sketcher.Constraint("Block", 1),
    Sketcher.Constraint("Coincident", 0, 2, 1, 1),
    Sketcher.Constraint("Coincident", 1, 2, 2, 1),
    Sketcher.Constraint("Coincident", 2, 2, 0, 1),
    Sketcher.Constraint("Horizontal", 2),
    Sketcher.Constraint("DistanceX", 2, 2, 2, 1, Q("14.4 mm")),
])
pad6 = body.newObject("PartDesign::Pad", "Pad005")
pad6.Profile = sketch7
pad6.Length = 9.3
pad6.Midplane = True

# Sketch on XY plane
sketch8 = body.newObject("Sketcher::SketchObject", "Sketch007")
sketch8.AttachmentSupport = (doc.getObject("XY_Plane"), [""])
sketch8.MapMode = "FlatFace"
sketch8.AttachmentOffset = App.Placement(App.Vector(0, 0, 10), App.Rotation())
add_polygon(sketch8, [(7.97, 6.2), (7.97, 5.75), (6.88, 5.75), (6.88, 6.2)])  # lines 0-3
add_polygon(sketch8, [(3.02, 6.2), (3.02, 5.75), (1.93, 5.75), (1.93, 6.2)])  # lines 4-7
add_polygon(sketch8, [(-1.93, 6.2), (-1.93, 5.75), (-3.02, 5.75), (-3.02, 6.2)])  # lines 8-11
add_polygon(sketch8, [(-6.88, 6.2), (-6.88, 5.75), (-7.97, 5.75), (-7.97, 6.2)])  # lines 12-15
add_polygon(sketch8, [(-6.88, -5.75), (-6.88, -6.2), (-7.97, -6.2), (-7.97, -5.75)])  # lines 16-19
add_polygon(sketch8, [(-1.93, -5.75), (-1.93, -6.2), (-3.02, -6.2), (-3.02, -5.75)])  # lines 20-23
add_polygon(sketch8, [(3.02, -5.75), (3.02, -6.2), (1.93, -6.2), (1.93, -5.75)])  # lines 24-27
add_polygon(sketch8, [(7.97, -5.75), (7.97, -6.2), (6.88, -6.2), (6.88, -5.75)])  # lines 28-31
sketch8.addConstraint([
    Sketcher.Constraint("Vertical", 0),
    Sketcher.Constraint("Horizontal", 1),
    Sketcher.Constraint("Vertical", 2),
    Sketcher.Constraint("Horizontal", 3),
    Sketcher.Constraint("Vertical", 4),
    Sketcher.Constraint("Horizontal", 5),
    Sketcher.Constraint("Vertical", 6),
    Sketcher.Constraint("Horizontal", 7),
    Sketcher.Constraint("Vertical", 8),
    Sketcher.Constraint("Horizontal", 9),
    Sketcher.Constraint("Vertical", 10),
    Sketcher.Constraint("Horizontal", 11),
    Sketcher.Constraint("Vertical", 12),
    Sketcher.Constraint("Horizontal", 13),
    Sketcher.Constraint("Vertical", 14),
    Sketcher.Constraint("Horizontal", 15),
    Sketcher.Constraint("Vertical", 16),
    Sketcher.Constraint("Horizontal", 17),
    Sketcher.Constraint("Vertical", 18),
    Sketcher.Constraint("Horizontal", 19),
    Sketcher.Constraint("Vertical", 20),
    Sketcher.Constraint("Horizontal", 21),
    Sketcher.Constraint("Vertical", 22),
    Sketcher.Constraint("Horizontal", 23),
    Sketcher.Constraint("Vertical", 24),
    Sketcher.Constraint("Horizontal", 25),
    Sketcher.Constraint("Vertical", 26),
    Sketcher.Constraint("Horizontal", 27),
    Sketcher.Constraint("Vertical", 28),
    Sketcher.Constraint("Horizontal", 29),
    Sketcher.Constraint("Vertical", 30),
    Sketcher.Constraint("Horizontal", 31),
    Sketcher.Constraint("Symmetric", 2, 2, 16, 2, -1, 1),
    Sketcher.Constraint("Symmetric", 0, 2, 18, 2, -1, 1),
    Sketcher.Constraint("Symmetric", 6, 2, 20, 2, -1, 1),
    Sketcher.Constraint("Symmetric", 4, 2, 22, 2, -1, 1),
    Sketcher.Constraint("Symmetric", 10, 2, 24, 2, -1, 1),
    Sketcher.Constraint("Symmetric", 8, 2, 26, 2, -1, 1),
    Sketcher.Constraint("Symmetric", 14, 2, 28, 2, -1, 1),
    Sketcher.Constraint("Symmetric", 12, 2, 30, 2, -1, 1),
    Sketcher.Constraint("Symmetric", 5, 2, 8, 2, -2),
    Sketcher.Constraint("Symmetric", 7, 2, 10, 2, -2),
    Sketcher.Constraint("Symmetric", 1, 2, 12, 2, -2),
    Sketcher.Constraint("Symmetric", 3, 2, 14, 2, -2),
    Sketcher.Constraint("Horizontal", 1, 2, 4, 2),
    Sketcher.Constraint("Horizontal", 3, 2, 6, 2),
    Sketcher.Constraint("Equal", 3, 5),
    Sketcher.Constraint("DistanceX", 1, 2, 1, 1, Q("1.1 mm")),
    Sketcher.Constraint("DistanceY", 0, 2, 0, 1, Q("0.45 mm")),
    Sketcher.Constraint("DistanceY", -1, 1, 2, 2, Q("6.2 mm")),
    Sketcher.Constraint("DistanceX", 8, 2, 1, 2, Q("8.8 mm")),
    Sketcher.Constraint("DistanceX", 4, 2, 1, 2, Q("3.85 mm")),
])
pad7 = body.newObject("PartDesign::Pad", "Pad006")
pad7.Profile = sketch8
pad7.Length = 1.9
pad7.Reversed = True
doc.recompute()

chamfer2 = body.newObject("PartDesign::Chamfer", "Chamfer001")
chamfer2.Base = (pad7, edges_at(pad7, [(7.425, 6.2, 8.1)]))
chamfer2.ChamferType = "Two distances"
chamfer2.Size = 0.5
chamfer2.Size2 = 0.288675
doc.recompute()

chamfer3 = body.newObject("PartDesign::Chamfer", "Chamfer002")
chamfer3.Base = (chamfer2, edges_at(chamfer2, [(2.475, 6.2, 8.1)]))
chamfer3.ChamferType = "Two distances"
chamfer3.Size = 0.5
chamfer3.Size2 = 0.288675
doc.recompute()

chamfer4 = body.newObject("PartDesign::Chamfer", "Chamfer003")
chamfer4.Base = (chamfer3, edges_at(chamfer3, [(-2.475, 6.2, 8.1)]))
chamfer4.ChamferType = "Two distances"
chamfer4.Size = 0.5
chamfer4.Size2 = 0.288675
doc.recompute()

chamfer5 = body.newObject("PartDesign::Chamfer", "Chamfer004")
chamfer5.Base = (chamfer4, edges_at(chamfer4, [(-7.425, 6.2, 8.1)]))
chamfer5.ChamferType = "Two distances"
chamfer5.Size = 0.5
chamfer5.Size2 = 0.288675
doc.recompute()

chamfer6 = body.newObject("PartDesign::Chamfer", "Chamfer005")
chamfer6.Base = (chamfer5, edges_at(chamfer5, [(-7.425, -6.2, 8.1)]))
chamfer6.ChamferType = "Two distances"
chamfer6.Size = 0.5
chamfer6.Size2 = 0.288675
doc.recompute()

chamfer7 = body.newObject("PartDesign::Chamfer", "Chamfer006")
chamfer7.Base = (chamfer6, edges_at(chamfer6, [(-2.475, -6.2, 8.1)]))
chamfer7.ChamferType = "Two distances"
chamfer7.Size = 0.5
chamfer7.Size2 = 0.288675
doc.recompute()

chamfer8 = body.newObject("PartDesign::Chamfer", "Chamfer007")
chamfer8.Base = (chamfer7, edges_at(chamfer7, [(2.475, -6.2, 8.1)]))
chamfer8.ChamferType = "Two distances"
chamfer8.Size = 0.5
chamfer8.Size2 = 0.288675
doc.recompute()

chamfer9 = body.newObject("PartDesign::Chamfer", "Chamfer008")
chamfer9.Base = (chamfer8, edges_at(chamfer8, [(7.425, -6.2, 8.1)]))
chamfer9.ChamferType = "Two distances"
chamfer9.Size = 0.5
chamfer9.Size2 = 0.288675

doc.recompute()
